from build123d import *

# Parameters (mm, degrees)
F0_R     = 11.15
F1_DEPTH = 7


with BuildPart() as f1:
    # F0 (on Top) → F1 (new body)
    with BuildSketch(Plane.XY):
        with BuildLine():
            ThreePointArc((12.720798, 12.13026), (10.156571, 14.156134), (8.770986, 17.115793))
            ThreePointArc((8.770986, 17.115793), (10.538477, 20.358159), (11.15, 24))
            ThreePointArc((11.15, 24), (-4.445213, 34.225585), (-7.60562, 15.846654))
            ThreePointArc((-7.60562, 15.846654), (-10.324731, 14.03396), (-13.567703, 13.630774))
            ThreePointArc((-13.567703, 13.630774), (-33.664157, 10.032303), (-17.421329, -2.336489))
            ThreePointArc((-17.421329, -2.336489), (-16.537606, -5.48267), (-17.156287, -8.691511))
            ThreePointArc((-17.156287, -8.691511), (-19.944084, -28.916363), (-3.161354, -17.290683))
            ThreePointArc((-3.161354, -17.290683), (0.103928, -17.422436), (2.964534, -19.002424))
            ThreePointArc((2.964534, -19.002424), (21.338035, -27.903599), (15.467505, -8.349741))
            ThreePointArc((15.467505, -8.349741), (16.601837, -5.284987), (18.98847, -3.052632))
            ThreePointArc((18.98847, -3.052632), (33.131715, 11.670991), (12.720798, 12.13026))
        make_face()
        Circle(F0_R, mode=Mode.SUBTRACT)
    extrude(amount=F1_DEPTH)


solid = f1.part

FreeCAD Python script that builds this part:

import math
import FreeCAD as App
import Part
import Sketcher
from FreeCAD import Vector

doc = App.newDocument("Part")
body = doc.addObject("PartDesign::Body", "Body")

# Sketch on XY plane
sketch1 = body.newObject("Sketcher::SketchObject", "Sketch")
sketch1.AttachmentSupport = (doc.getObject("XY_Plane"), [""])
sketch1.MapMode = "FlatFace"
sketch1.addGeometry([
    Part.ArcOfCircle(Part.Circle(Vector(15.723302, 18.566403, 0), Vector(0, 0, 1), 7.10204), math.radians(-168.214249), math.radians(-115.009369)),  # 0
    Part.ArcOfCircle(Part.Circle(Vector(0.000002, 23.999999, 0), Vector(0, 0, 1), 11.149998), math.radians(-38.127806), math.radians(0.000004)),  # 1
    Part.ArcOfCircle(Part.Circle(Vector(0, 24, 0), Vector(0, 0, 1), 11.15), math.radians(0), math.radians(226.990599)),  # 2
    Part.ArcOfCircle(Part.Circle(Vector(-12.798936, 20.691096, 0), Vector(0, 0, 1), 7.102052), math.radians(-96.214202), math.radians(-43.009418)),  # 3
    Part.ArcOfCircle(Part.Circle(Vector(-22.825357, 7.416407, 0), Vector(0, 0, 1), 11.15), math.radians(33.872198), math.radians(298.990602)),  # 4
    Part.ArcOfCircle(Part.Circle(Vector(-23.633487, -5.778611, 0), Vector(0, 0, 1), 7.10205), math.radians(-24.21421), math.radians(28.990588)),  # 5
    Part.ArcOfCircle(Part.Circle(Vector(-14.106846, -19.416408, 0), Vector(0, 0, 1), 11.15), math.radians(105.872195), math.radians(370.9906)),  # 6
    Part.ArcOfCircle(Part.Circle(Vector(-1.807364, -24.262468, 0), Vector(0, 0, 1), 7.102047), math.radians(47.785765), math.radians(100.990595)),  # 7
    Part.ArcOfCircle(Part.Circle(Vector(14.106846, -19.416408, 0), Vector(0, 0, 1), 11.15), math.radians(177.8722), math.radians(442.990601)),  # 8
    Part.ArcOfCircle(Part.Circle(Vector(22.516474, -9.21642, 0), Vector(0, 0, 1), 7.102048), math.radians(119.785781), math.radians(172.990597)),  # 9
    Part.ArcOfCircle(Part.Circle(Vector(22.825356, 7.416408, 0), Vector(0, 0, 1), 11.15), math.radians(-110.127805), math.radians(154.990598)),  # 10
    Part.Circle(Vector(0, 0, 0), Vector(0, 0, 1), 11.15),  # 11
], False)
sketch1.addConstraint([
    Sketcher.Constraint("Coincident", 0, 1, 1, 1),
    Sketcher.Constraint("Coincident", 1, 2, 2, 1),
    Sketcher.Constraint("Coincident", 2, 2, 3, 2),
    Sketcher.Constraint("Coincident", 3, 1, 4, 1),
    Sketcher.Constraint("Coincident", 4, 2, 5, 2),
    Sketcher.Constraint("Coincident", 5, 1, 6, 1),
    Sketcher.Constraint("Coincident", 6, 2, 7, 2),
    Sketcher.Constraint("Coincident", 7, 1, 8, 1),
    Sketcher.Constraint("Coincident", 8, 2, 9, 2),
    Sketcher.Constraint("Coincident", 9, 1, 10, 1),
    Sketcher.Constraint("Coincident", 10, 2, 0, 2),
    Sketcher.Constraint("Coincident", 11, 3, -1, 1),
    Sketcher.Constraint("Coincident", 2, 3, 1, 3),
    Sketcher.Constraint("PointOnObject", 2, 3, -2),
    Sketcher.Constraint("Diameter", 11, 22.3),
    Sketcher.Constraint("Radius", 2, 11.15),
    Sketcher.Constraint("Radius", 4, 11.15),
    Sketcher.Constraint("Radius", 6, 11.15),
    Sketcher.Constraint("Radius", 8, 11.15),
    Sketcher.Constraint("Radius", 10, 11.15),
    Sketcher.Constraint("DistanceY", -1, 1, 1, 3, 23.999999),
    Sketcher.Constraint("DistanceY", -1, 1, 1, 2, 24.0),
    Sketcher.Constraint("Radius", 0, 7.10204),
    Sketcher.Constraint("Radius", 5, 7.10205),
    Sketcher.Constraint("Radius", 9, 7.102048),
    Sketcher.Constraint("Radius", 3, 7.102052),
    Sketcher.Constraint("Radius", 7, 7.102047),
    Sketcher.Constraint("DistanceX", 1, 3, 0, 3, 15.7233),
    Sketcher.Constraint("DistanceX", 5, 3, 5, 1, 6.4772),
    Sketcher.Constraint("DistanceX", 6, 2, 8, 3, 17.2682),
    Sketcher.Constraint("DistanceX", 7, 3, 7, 1, 4.771898),
    Sketcher.Constraint("DistanceY", 5, 3, -1, 1, 5.778611),
    Sketcher.Constraint("DistanceY", 9, 3, -1, 1, 9.21642),
    Sketcher.Constraint("DistanceY", -1, 1, 10, 3, 7.416408),
    Sketcher.Constraint("DistanceX", 2, 2, -1, 1, 7.60562),
    Sketcher.Constraint("DistanceX", 4, 2, -1, 1, 17.421329),
    Sketcher.Constraint("DistanceY", 4, 2, -1, 1, 2.336489),
    Sketcher.Constraint("DistanceY", 8, 2, -1, 1, 8.349741),
    Sketcher.Constraint("DistanceX", -1, 1, 9, 1, 18.98847),
    Sketcher.Constraint("DistanceY", 9, 1, -1, 1, 3.052632),
    Sketcher.Constraint("DistanceY", -1, 1, 10, 2, 12.13026),
    Sketcher.Constraint("DistanceX", 3, 3, 0, 3, 28.522238),
    Sketcher.Constraint("DistanceX", 4, 3, 3, 3, 10.026421),
    Sketcher.Constraint("DistanceX", 5, 3, 6, 3, 9.526641),
    Sketcher.Constraint("DistanceX", 6, 3, 7, 3, 12.299482),
])
pad1 = body.newObject("PartDesign::Pad", "Pad")
pad1.Profile = sketch1
pad1.Length = 7

doc.recompute()
